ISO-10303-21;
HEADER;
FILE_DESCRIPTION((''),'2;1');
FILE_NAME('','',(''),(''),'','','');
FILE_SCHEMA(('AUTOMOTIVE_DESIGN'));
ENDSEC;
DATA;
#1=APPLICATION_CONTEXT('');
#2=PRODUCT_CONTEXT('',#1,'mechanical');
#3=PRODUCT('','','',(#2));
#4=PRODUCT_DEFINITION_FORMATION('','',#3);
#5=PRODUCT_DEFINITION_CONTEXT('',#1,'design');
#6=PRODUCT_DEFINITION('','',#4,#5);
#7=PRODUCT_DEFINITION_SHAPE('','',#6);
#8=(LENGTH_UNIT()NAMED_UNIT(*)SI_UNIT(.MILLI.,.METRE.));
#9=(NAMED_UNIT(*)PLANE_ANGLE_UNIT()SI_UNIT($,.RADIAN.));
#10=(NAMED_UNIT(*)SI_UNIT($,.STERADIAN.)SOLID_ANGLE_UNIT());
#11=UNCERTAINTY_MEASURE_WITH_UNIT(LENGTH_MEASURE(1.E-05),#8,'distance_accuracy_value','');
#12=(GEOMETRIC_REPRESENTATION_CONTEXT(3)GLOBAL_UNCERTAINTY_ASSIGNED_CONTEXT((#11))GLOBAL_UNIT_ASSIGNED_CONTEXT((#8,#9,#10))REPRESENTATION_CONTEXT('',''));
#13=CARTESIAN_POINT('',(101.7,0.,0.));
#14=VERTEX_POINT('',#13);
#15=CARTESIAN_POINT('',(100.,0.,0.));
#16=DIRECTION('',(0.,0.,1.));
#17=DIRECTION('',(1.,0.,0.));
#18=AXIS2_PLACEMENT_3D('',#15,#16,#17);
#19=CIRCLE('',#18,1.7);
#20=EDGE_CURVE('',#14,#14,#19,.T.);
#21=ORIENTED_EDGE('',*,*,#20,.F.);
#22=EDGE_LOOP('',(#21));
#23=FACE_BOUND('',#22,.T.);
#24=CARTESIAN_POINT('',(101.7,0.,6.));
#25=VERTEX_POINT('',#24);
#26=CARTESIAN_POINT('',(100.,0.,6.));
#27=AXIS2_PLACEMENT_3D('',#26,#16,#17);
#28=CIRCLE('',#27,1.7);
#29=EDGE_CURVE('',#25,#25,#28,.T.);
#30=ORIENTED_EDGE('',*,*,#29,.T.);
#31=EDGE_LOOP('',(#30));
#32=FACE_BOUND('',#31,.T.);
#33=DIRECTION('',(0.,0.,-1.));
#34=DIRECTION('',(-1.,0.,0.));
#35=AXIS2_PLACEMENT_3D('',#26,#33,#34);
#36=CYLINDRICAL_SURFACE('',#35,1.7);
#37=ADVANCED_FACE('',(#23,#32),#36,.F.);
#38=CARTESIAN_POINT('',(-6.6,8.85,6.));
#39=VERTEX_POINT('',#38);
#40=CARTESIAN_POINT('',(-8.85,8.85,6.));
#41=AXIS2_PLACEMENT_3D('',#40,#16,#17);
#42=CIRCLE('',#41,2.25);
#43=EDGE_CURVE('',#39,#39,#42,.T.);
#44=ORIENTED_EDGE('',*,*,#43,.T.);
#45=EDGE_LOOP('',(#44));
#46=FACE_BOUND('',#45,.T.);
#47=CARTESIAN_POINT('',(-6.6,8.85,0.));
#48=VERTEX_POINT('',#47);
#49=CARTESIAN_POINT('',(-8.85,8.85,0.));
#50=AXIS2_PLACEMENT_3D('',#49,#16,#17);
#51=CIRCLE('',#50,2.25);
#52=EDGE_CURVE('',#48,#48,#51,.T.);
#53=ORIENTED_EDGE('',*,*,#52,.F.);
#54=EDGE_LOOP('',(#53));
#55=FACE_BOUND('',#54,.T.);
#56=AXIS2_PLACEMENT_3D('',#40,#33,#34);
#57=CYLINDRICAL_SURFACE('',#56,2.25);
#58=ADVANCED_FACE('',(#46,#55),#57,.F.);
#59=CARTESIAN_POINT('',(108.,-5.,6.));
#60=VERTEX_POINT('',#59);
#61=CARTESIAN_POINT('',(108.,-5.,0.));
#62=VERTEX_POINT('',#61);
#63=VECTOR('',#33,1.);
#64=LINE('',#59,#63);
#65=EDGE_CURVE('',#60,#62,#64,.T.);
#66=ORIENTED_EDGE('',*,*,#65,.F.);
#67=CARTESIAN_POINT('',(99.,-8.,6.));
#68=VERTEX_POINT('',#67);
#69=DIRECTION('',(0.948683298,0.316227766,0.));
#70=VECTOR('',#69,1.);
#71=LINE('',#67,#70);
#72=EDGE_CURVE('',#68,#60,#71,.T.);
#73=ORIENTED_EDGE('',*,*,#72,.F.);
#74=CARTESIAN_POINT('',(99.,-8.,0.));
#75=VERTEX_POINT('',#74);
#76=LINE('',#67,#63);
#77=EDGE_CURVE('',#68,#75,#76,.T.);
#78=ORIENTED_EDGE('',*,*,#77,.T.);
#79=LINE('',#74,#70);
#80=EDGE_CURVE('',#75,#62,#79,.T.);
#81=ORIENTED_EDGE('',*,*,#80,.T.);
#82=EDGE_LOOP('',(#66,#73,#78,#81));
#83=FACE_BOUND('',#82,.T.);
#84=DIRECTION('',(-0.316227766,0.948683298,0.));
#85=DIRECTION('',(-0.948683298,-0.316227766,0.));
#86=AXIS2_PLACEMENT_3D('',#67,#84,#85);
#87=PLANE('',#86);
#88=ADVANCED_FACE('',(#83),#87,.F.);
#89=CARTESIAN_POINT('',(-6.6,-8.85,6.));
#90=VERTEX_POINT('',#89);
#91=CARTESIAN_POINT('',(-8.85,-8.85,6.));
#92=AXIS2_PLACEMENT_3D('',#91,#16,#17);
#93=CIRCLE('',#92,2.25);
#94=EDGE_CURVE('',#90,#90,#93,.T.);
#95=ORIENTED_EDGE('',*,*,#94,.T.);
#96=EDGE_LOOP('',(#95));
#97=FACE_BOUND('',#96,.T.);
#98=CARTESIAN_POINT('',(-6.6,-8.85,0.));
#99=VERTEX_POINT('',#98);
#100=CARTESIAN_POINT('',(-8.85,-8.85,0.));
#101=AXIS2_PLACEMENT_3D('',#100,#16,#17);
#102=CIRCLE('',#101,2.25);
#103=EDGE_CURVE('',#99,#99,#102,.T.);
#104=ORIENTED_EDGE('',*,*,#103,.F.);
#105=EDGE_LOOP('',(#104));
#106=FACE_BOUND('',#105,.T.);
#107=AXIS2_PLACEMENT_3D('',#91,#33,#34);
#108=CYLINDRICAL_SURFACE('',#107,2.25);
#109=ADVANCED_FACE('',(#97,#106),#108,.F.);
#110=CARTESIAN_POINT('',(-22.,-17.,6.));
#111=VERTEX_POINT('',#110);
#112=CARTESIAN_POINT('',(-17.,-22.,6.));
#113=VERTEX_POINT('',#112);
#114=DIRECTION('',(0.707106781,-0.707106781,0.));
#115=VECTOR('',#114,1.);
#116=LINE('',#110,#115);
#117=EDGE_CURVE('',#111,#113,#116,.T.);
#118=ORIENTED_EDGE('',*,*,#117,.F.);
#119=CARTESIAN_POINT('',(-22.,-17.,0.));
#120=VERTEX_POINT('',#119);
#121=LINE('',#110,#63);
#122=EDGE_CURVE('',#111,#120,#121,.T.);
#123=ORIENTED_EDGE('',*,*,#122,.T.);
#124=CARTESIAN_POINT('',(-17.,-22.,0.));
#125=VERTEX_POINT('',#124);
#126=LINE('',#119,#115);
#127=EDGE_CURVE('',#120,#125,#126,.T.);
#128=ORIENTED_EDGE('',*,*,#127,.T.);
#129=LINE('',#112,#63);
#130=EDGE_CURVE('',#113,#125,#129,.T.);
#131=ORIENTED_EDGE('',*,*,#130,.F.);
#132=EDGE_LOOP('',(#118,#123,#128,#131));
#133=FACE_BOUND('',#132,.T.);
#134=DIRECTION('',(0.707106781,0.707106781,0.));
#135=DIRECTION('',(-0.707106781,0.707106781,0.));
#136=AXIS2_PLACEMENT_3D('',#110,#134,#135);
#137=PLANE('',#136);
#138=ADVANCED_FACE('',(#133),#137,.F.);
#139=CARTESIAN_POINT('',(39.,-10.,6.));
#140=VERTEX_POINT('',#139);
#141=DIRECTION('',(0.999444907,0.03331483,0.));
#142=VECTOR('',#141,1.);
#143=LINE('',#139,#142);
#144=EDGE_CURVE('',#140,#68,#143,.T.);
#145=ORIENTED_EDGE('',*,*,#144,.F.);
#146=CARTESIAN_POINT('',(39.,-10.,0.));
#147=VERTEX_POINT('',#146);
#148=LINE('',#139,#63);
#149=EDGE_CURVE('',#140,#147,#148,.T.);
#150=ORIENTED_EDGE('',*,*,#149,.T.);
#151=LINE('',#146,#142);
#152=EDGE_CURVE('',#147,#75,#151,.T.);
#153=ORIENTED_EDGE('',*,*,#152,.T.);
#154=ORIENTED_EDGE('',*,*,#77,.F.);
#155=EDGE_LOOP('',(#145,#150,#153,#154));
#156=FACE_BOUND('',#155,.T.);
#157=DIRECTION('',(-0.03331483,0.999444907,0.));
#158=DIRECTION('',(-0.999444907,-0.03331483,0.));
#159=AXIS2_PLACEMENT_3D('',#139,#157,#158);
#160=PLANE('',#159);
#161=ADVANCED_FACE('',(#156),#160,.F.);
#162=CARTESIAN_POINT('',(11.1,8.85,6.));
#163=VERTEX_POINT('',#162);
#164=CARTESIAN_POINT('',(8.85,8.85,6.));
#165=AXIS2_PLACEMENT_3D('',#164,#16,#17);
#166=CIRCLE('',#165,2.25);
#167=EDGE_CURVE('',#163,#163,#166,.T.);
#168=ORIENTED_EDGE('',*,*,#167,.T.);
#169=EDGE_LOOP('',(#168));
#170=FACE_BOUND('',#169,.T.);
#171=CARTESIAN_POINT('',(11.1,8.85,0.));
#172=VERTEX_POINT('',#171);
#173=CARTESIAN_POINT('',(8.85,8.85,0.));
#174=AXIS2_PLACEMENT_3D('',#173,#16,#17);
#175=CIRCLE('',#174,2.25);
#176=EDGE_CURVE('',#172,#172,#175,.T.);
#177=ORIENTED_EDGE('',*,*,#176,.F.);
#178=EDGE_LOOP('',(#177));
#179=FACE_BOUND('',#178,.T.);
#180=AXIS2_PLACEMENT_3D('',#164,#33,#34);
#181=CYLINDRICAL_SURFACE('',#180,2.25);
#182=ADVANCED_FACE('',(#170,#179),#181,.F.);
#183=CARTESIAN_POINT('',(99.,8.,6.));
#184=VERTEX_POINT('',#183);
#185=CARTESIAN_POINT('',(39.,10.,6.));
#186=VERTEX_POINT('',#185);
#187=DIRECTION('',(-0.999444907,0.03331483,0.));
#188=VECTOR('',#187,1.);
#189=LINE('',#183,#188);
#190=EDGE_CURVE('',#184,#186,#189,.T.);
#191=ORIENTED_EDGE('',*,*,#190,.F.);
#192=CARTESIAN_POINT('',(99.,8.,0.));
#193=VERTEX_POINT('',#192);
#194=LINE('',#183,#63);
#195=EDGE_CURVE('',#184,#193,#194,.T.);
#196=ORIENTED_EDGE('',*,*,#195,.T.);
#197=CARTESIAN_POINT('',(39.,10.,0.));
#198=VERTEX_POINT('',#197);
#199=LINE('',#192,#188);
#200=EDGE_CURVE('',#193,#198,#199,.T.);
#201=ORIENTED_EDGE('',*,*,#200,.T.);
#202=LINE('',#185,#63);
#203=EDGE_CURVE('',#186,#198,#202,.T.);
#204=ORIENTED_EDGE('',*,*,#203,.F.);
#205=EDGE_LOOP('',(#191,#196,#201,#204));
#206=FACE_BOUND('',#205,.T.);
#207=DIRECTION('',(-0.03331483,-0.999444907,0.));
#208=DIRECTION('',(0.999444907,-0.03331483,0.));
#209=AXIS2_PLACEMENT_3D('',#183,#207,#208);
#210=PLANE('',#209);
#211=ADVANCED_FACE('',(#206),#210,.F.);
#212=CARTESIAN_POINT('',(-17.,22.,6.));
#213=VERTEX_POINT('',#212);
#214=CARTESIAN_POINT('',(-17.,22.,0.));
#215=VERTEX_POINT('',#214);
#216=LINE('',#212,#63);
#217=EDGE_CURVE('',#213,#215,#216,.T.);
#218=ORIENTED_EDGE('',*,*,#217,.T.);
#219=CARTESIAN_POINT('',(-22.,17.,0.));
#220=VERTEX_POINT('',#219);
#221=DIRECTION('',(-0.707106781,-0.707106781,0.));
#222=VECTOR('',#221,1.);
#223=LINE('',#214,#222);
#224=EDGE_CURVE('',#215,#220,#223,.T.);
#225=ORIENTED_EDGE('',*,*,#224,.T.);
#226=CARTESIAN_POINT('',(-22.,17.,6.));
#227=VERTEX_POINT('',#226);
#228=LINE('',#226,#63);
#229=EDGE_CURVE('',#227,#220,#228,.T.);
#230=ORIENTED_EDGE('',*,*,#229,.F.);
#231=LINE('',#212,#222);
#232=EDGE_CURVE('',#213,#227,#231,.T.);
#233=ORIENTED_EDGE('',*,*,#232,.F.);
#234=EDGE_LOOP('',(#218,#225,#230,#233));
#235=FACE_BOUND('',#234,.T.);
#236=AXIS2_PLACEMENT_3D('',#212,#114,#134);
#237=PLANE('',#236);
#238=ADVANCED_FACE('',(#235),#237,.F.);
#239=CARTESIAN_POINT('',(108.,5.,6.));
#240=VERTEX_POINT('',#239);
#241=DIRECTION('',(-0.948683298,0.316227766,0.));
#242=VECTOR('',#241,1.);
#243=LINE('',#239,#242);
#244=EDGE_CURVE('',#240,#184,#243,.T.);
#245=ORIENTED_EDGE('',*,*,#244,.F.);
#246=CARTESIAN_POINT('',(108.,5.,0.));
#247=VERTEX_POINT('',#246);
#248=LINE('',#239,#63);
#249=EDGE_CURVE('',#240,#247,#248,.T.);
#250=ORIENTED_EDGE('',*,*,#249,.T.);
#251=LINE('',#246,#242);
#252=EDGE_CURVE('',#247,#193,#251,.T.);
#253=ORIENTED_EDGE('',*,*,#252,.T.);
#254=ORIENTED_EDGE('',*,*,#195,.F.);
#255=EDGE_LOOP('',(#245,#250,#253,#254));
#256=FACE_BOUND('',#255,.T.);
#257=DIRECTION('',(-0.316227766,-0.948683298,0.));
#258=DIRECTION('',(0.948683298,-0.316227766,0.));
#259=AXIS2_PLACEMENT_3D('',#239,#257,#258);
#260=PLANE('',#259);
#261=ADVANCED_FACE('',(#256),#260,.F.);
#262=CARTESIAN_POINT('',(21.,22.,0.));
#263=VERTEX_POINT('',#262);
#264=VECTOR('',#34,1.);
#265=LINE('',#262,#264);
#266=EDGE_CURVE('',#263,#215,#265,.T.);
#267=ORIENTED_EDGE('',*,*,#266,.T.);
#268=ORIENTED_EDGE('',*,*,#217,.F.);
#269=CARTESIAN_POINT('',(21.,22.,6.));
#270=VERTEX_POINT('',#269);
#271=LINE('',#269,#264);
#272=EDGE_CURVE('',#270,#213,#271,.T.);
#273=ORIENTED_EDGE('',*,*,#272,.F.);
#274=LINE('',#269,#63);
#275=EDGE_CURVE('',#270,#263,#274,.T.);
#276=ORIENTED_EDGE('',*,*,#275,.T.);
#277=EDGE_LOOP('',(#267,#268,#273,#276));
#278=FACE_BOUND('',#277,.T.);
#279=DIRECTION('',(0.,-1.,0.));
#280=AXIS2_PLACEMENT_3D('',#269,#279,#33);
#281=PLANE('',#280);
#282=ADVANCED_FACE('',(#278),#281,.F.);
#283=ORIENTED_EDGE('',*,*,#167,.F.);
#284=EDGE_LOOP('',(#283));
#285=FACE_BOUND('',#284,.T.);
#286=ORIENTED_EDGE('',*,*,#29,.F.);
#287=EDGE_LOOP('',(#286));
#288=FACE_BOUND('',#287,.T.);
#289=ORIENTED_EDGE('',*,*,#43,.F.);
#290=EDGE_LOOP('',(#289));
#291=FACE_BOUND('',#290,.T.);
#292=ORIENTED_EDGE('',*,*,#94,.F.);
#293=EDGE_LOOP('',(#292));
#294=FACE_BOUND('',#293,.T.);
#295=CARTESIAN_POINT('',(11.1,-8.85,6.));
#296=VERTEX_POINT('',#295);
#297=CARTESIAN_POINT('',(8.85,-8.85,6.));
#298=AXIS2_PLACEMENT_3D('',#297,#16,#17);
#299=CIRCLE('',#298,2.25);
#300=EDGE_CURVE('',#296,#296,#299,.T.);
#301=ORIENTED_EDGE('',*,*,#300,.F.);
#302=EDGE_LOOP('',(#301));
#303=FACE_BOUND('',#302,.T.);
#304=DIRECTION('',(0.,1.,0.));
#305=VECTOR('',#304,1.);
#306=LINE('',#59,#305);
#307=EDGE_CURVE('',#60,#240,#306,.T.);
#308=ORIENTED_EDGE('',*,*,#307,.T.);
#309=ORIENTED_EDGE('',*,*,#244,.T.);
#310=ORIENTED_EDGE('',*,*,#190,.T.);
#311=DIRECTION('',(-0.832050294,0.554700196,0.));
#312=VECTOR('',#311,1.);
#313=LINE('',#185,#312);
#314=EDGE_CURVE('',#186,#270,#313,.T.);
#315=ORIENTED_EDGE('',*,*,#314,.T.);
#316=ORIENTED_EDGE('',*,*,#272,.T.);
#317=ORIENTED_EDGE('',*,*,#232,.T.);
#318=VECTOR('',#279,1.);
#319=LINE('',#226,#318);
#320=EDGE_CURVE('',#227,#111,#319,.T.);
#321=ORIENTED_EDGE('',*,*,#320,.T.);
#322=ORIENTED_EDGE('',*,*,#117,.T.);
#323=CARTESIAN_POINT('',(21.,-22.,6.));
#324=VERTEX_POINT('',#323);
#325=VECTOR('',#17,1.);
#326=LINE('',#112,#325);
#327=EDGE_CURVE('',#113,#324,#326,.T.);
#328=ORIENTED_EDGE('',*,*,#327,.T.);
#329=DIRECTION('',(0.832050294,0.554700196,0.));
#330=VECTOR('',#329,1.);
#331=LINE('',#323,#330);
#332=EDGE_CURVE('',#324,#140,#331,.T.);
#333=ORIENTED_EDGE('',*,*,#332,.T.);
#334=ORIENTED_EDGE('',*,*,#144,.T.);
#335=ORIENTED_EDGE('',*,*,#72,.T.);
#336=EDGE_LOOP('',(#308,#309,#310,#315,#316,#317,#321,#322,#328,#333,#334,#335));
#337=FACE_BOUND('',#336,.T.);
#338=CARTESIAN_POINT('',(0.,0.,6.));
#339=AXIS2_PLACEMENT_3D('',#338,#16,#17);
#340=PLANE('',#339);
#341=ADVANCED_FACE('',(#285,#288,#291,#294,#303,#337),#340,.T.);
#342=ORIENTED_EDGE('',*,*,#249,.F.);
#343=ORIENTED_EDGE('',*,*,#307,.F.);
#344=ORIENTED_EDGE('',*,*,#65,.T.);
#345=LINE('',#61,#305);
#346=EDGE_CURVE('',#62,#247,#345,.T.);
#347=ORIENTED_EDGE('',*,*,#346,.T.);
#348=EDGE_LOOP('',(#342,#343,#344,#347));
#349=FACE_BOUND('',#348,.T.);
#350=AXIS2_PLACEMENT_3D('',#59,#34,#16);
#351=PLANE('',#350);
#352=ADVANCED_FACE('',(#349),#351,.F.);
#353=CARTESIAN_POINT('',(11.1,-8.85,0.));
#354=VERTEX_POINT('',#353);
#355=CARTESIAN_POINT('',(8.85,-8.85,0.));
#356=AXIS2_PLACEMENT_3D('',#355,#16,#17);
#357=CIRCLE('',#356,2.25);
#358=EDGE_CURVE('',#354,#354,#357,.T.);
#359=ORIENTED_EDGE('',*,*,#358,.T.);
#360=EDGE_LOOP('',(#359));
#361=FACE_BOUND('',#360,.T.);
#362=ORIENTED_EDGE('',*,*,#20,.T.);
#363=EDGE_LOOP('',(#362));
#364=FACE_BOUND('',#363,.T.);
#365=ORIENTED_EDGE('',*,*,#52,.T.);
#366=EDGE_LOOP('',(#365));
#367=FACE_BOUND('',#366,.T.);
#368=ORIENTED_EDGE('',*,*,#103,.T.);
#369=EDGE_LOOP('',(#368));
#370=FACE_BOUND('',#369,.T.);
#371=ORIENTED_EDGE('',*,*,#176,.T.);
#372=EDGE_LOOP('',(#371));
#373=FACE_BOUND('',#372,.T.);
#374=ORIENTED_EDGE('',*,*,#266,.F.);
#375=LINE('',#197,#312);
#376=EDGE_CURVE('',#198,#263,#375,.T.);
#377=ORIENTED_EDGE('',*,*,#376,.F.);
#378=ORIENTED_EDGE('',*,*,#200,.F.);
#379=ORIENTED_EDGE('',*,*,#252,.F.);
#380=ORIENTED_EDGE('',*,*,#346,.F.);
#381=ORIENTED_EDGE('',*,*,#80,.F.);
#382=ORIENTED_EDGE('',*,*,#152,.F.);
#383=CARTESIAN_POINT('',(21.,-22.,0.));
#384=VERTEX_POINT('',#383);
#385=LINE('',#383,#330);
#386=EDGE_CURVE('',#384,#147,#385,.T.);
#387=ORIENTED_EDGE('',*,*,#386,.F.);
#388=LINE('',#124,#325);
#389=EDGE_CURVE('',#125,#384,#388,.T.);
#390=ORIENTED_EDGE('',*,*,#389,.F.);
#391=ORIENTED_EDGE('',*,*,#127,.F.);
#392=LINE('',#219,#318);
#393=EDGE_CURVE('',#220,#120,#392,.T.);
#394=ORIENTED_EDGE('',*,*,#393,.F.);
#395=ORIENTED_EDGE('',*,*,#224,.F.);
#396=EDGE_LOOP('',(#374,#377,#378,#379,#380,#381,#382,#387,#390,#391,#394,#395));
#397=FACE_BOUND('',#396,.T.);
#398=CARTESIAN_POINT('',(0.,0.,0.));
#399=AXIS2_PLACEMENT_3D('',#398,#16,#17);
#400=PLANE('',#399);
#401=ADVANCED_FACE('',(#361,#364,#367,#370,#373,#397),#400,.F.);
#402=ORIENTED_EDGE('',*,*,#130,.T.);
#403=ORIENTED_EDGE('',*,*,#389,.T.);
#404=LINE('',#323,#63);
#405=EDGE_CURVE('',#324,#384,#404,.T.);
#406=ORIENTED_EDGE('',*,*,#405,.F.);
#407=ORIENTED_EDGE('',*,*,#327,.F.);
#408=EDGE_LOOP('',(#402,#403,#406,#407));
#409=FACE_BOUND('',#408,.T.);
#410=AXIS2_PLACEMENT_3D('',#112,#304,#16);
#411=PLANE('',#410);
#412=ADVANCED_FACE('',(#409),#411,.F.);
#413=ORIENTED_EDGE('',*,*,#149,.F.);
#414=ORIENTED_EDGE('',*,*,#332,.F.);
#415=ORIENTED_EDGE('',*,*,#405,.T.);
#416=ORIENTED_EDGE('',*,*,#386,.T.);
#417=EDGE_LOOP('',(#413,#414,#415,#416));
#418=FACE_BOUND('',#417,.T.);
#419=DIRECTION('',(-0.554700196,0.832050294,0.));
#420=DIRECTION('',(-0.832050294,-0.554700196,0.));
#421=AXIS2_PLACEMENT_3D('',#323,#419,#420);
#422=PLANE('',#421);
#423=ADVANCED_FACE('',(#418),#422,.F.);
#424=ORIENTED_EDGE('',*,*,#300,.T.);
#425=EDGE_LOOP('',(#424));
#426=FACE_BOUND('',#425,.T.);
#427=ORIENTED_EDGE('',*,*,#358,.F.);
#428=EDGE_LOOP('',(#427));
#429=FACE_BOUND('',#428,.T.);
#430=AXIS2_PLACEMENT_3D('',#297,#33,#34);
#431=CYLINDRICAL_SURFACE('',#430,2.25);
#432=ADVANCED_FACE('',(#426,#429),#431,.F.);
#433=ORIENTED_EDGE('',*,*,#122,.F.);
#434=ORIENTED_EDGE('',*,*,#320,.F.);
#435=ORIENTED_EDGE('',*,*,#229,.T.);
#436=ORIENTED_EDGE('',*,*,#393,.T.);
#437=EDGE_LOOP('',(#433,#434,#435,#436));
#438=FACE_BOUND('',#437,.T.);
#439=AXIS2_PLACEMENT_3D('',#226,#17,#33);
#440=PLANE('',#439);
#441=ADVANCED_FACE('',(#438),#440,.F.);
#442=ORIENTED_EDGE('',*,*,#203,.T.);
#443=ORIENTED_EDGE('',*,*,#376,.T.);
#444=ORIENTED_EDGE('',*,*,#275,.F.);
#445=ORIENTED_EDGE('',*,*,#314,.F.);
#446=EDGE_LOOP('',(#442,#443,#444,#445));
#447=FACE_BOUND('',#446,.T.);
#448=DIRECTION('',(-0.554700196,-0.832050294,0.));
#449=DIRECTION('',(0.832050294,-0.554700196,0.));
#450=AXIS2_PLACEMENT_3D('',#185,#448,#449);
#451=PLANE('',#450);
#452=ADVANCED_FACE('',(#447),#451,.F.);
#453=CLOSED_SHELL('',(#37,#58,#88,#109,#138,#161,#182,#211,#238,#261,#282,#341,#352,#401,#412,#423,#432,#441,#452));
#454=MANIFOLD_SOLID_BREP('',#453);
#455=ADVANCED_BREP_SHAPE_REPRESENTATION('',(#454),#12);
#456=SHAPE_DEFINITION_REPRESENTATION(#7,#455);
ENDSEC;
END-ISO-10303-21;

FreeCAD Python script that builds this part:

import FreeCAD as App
import Part
import Sketcher
Q = App.Units.Quantity


def add_polygon(sketch, points):
    """Adds a closed chain of lines whose ends are joined by coincident constraints."""
    first, n = sketch.GeometryCount, len(points)
    for a, b in zip(points, points[1:] + points[:1]):
        sketch.addGeometry(Part.LineSegment(App.Vector(*a, 0), App.Vector(*b, 0)), False)
    for i in range(n):
        sketch.addConstraint(Sketcher.Constraint("Coincident", first + i, 2, first + (i + 1) % n, 1))

doc = App.newDocument("Part")
body = doc.addObject("PartDesign::Body", "Body")

# Sketch on XY plane
sketch1 = body.newObject("Sketcher::SketchObject", "Sketch")
sketch1.AttachmentSupport = (doc.getObject("XY_Plane"), [""])
sketch1.MapMode = "FlatFace"
add_polygon(sketch1, [(-22, -17), (-17, -22), (21, -22), (39, -10), (99, -8), (108, -5), (108, 5), (99, 8), (39, 10), (21, 22), (-17, 22), (-22, 17)])  # lines 0-11
sketch1.addGeometry(Part.Circle(App.Vector(-8.85, -8.85, 0), App.Vector(0, 0, 1), 2.25), False)  # 12
sketch1.addGeometry(Part.Circle(App.Vector(8.85, -8.85, 0), App.Vector(0, 0, 1), 2.25), False)  # 13
sketch1.addGeometry(Part.Circle(App.Vector(-8.85, 8.85, 0), App.Vector(0, 0, 1), 2.25), False)  # 14
sketch1.addGeometry(Part.Circle(App.Vector(8.85, 8.85, 0), App.Vector(0, 0, 1), 2.25), False)  # 15
sketch1.addGeometry(Part.Circle(App.Vector(100, 0, 0), App.Vector(0, 0, 1), 1.7), False)  # 16
sketch1.addConstraint([
    Sketcher.Constraint("Horizontal", 1),
    Sketcher.Constraint("Vertical", 5),
    Sketcher.Constraint("Horizontal", 9),
    Sketcher.Constraint("Vertical", 11),
    Sketcher.Constraint("Equal", 12, 13),
    Sketcher.Constraint("Equal", 13, 14),
    Sketcher.Constraint("Equal", 14, 15),
    Sketcher.Constraint("Symmetric", 13, 3, 14, 3, -1, 1),
    Sketcher.Constraint("Symmetric", 12, 3, 15, 3, -1, 1),
    Sketcher.Constraint("Symmetric", 12, 3, 13, 3, -2),
    Sketcher.Constraint("Symmetric", 3, 2, 6, 2, -1),
    Sketcher.Constraint("Symmetric", 2, 2, 7, 2, -1),
    Sketcher.Constraint("Symmetric", 1, 2, 8, 2, -1),
    Sketcher.Constraint("PointOnObject", 16, 3, -1),
    Sketcher.Constraint("Perpendicular", 0, 10),
    Sketcher.Constraint("Vertical", 0, 2, 9, 2),
    Sketcher.Constraint("Equal", 4, 6),
    Sketcher.Constraint("Equal", 0, 10),
    Sketcher.Constraint("Diameter", 12, Q("4.5 mm")),
    Sketcher.Constraint("Diameter", 16, Q("3.4 mm")),
    Sketcher.Constraint("DistanceX", 1, 1, 1, 2, Q("38 mm")),
    Sketcher.Constraint("DistanceY", 5, 1, 5, 2, Q("10 mm")),
    Sketcher.Constraint("DistanceY", 11, 2, 11, 1, Q("34 mm")),
    Sketcher.Constraint("DistanceX", -1, 1, 16, 3, Q("100 mm")),
    Sketcher.Constraint("DistanceX", 0, 2, -1, 1, Q("17 mm")),
    Sketcher.Constraint("DistanceY", 0, 2, -1, 1, Q("22 mm")),
    Sketcher.Constraint("DistanceX", -1, 1, 2, 2, Q("39 mm")),
    Sketcher.Constraint("DistanceY", 2, 2, -1, 1, Q("10 mm")),
    Sketcher.Constraint("DistanceX", -1, 1, 3, 2, Q("99 mm")),
    Sketcher.Constraint("DistanceY", 3, 2, -1, 1, Q("8 mm")),
    Sketcher.Constraint("DistanceX", -1, 1, 4, 2, Q("108 mm")),
    Sketcher.Constraint("DistanceX", 12, 3, 13, 3, Q("17.7 mm")),
    Sketcher.Constraint("DistanceY", 12, 3, 14, 3, Q("17.7 mm")),
])
pad1 = body.newObject("PartDesign::Pad", "Pad")
pad1.Profile = sketch1
pad1.Length = 6

doc.recompute()
